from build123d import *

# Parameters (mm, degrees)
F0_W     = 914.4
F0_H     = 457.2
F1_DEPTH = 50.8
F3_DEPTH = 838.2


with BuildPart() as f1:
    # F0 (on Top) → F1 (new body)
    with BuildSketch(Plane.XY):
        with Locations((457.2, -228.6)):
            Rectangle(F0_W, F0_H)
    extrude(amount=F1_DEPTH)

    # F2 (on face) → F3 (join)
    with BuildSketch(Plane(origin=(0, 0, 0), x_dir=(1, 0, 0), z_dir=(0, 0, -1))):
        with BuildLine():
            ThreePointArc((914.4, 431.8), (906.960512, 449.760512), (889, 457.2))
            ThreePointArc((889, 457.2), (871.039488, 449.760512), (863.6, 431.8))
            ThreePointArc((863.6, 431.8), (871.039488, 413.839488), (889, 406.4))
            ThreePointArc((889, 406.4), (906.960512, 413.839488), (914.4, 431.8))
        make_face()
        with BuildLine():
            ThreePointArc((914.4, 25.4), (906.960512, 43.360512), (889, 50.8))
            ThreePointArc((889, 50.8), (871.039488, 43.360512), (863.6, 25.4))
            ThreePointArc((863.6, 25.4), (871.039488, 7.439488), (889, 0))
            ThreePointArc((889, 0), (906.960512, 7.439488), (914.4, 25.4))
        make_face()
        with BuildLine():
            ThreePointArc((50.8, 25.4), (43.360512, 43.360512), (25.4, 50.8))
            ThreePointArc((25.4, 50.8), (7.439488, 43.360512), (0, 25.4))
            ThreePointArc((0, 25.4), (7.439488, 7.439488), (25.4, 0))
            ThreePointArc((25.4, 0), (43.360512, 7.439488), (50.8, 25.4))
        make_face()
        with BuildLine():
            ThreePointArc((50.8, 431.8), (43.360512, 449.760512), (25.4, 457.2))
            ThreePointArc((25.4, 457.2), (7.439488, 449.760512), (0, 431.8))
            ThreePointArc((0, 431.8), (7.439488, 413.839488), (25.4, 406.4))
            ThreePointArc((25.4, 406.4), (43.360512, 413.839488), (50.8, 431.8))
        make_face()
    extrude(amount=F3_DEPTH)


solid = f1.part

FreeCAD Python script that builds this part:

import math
import FreeCAD as App
import Part
import Sketcher
Q = App.Units.Quantity

doc = App.newDocument("Part")
params = doc.addObject("Spreadsheet::Sheet", "Params")
for row, (alias, value) in enumerate([
    ("sketch1_width", "36 in"),
    ("sketch1_height", "18 in"),
    ("pad1_length", "2 in"),
    ("sketch2_radius", "1 in"),
    ("pad2_length", "33 in"),
], start=1):
    params.set(f"A{row}", alias)
    params.set(f"B{row}", "=" + value)
    params.setAlias(f"B{row}", alias)

body = doc.addObject("PartDesign::Body", "Body")

sketch1 = body.newObject("Sketcher::SketchObject", "Sketch")
sketch1.AttachmentSupport = (doc.getObject("XY_Plane"), [""])
sketch1.MapMode = "FlatFace"
sketch1.addGeometry([
    Part.LineSegment(App.Vector(0, 0, 0), App.Vector(0, -457, 0)),
    Part.LineSegment(App.Vector(0, -457, 0), App.Vector(914, -457, 0)),
    Part.LineSegment(App.Vector(914, -457, 0), App.Vector(914, 0, 0)),
    Part.LineSegment(App.Vector(914, 0, 0), App.Vector(0, 0, 0)),
], False)
sketch1.addConstraint([
    Sketcher.Constraint("Coincident", 0, 2, 1, 1),
    Sketcher.Constraint("Coincident", 1, 2, 2, 1),
    Sketcher.Constraint("Coincident", 2, 2, 3, 1),
    Sketcher.Constraint("Coincident", 3, 2, 0, 1),
    Sketcher.Constraint("Vertical", 0),
    Sketcher.Constraint("Horizontal", 1),
    Sketcher.Constraint("Vertical", 2),
    Sketcher.Constraint("Horizontal", 3),
    Sketcher.Constraint("Coincident", 3, 2, -1, 1),
    Sketcher.Constraint("DistanceX", 1, 1, 1, 2, Q("36 in")),
    Sketcher.Constraint("DistanceY", 0, 2, 0, 1, Q("18 in")),
])
sketch1.setExpression("Constraints[9]", "Params.sketch1_width")
sketch1.setExpression("Constraints[10]", "Params.sketch1_height")
pad1 = body.newObject("PartDesign::Pad", "Pad")
pad1.Profile = sketch1
pad1.setExpression("Length", "Params.pad1_length")

sketch2 = body.newObject("Sketcher::SketchObject", "Sketch001")
sketch2.AttachmentSupport = (doc.getObject("XY_Plane"), [""])
sketch2.MapMode = "FlatFace"
sketch2.addGeometry([
    Part.ArcOfCircle(Part.Circle(App.Vector(889, -432, 0), App.Vector(0, 0, 1), 25), math.radians(-90), math.radians(0)),
    Part.ArcOfCircle(Part.Circle(App.Vector(889, -432, 0), App.Vector(0, 0, 1), 25), math.radians(-180), math.radians(-90)),
    Part.ArcOfCircle(Part.Circle(App.Vector(889, -432, 0), App.Vector(0, 0, 1), 25), math.radians(90), math.radians(180)),
    Part.ArcOfCircle(Part.Circle(App.Vector(889, -432, 0), App.Vector(0, 0, 1), 25), math.radians(0), math.radians(90)),
    Part.ArcOfCircle(Part.Circle(App.Vector(889, -25, 0), App.Vector(0, 0, 1), 25), math.radians(-90), math.radians(0)),
    Part.ArcOfCircle(Part.Circle(App.Vector(889, -25, 0), App.Vector(0, 0, 1), 25), math.radians(-180), math.radians(-90)),
    Part.ArcOfCircle(Part.Circle(App.Vector(889, -25, 0), App.Vector(0, 0, 1), 25), math.radians(90), math.radians(180)),
    Part.ArcOfCircle(Part.Circle(App.Vector(889, -25, 0), App.Vector(0, 0, 1), 25), math.radians(0), math.radians(90)),
    Part.ArcOfCircle(Part.Circle(App.Vector(25, -25, 0), App.Vector(0, 0, 1), 25), math.radians(-90), math.radians(0)),
    Part.ArcOfCircle(Part.Circle(App.Vector(25, -25, 0), App.Vector(0, 0, 1), 25), math.radians(-180), math.radians(-90)),
    Part.ArcOfCircle(Part.Circle(App.Vector(25, -25, 0), App.Vector(0, 0, 1), 25), math.radians(90), math.radians(180)),
    Part.ArcOfCircle(Part.Circle(App.Vector(25, -25, 0), App.Vector(0, 0, 1), 25), math.radians(0), math.radians(90)),
    Part.ArcOfCircle(Part.Circle(App.Vector(25, -432, 0), App.Vector(0, 0, 1), 25), math.radians(-90), math.radians(0)),
    Part.ArcOfCircle(Part.Circle(App.Vector(25, -432, 0), App.Vector(0, 0, 1), 25), math.radians(-180), math.radians(-90)),
    Part.ArcOfCircle(Part.Circle(App.Vector(25, -432, 0), App.Vector(0, 0, 1), 25), math.radians(90), math.radians(180)),
    Part.ArcOfCircle(Part.Circle(App.Vector(25, -432, 0), App.Vector(0, 0, 1), 25), math.radians(0), math.radians(90)),
], False)
sketch2.addConstraint([
    Sketcher.Constraint("Tangent", 0, 1, 1, 2),
    Sketcher.Constraint("Tangent", 1, 1, 2, 2),
    Sketcher.Constraint("Tangent", 2, 1, 3, 2),
    Sketcher.Constraint("Tangent", 3, 1, 0, 2),
    Sketcher.Constraint("Tangent", 4, 1, 5, 2),
    Sketcher.Constraint("Tangent", 5, 1, 6, 2),
    Sketcher.Constraint("Tangent", 6, 1, 7, 2),
    Sketcher.Constraint("Tangent", 7, 1, 4, 2),
    Sketcher.Constraint("Tangent", 8, 1, 9, 2),
    Sketcher.Constraint("Tangent", 9, 1, 10, 2),
    Sketcher.Constraint("Tangent", 10, 1, 11, 2),
    Sketcher.Constraint("Tangent", 11, 1, 8, 2),
    Sketcher.Constraint("Tangent", 12, 1, 13, 2),
    Sketcher.Constraint("Tangent", 13, 1, 14, 2),
    Sketcher.Constraint("Tangent", 14, 1, 15, 2),
    Sketcher.Constraint("Tangent", 15, 1, 12, 2),
    Sketcher.Constraint("Equal", 0, 1),
    Sketcher.Constraint("Equal", 3, 4),
    Sketcher.Constraint("Equal", 4, 5),
    Sketcher.Constraint("Equal", 7, 8),
    Sketcher.Constraint("Equal", 8, 9),
    Sketcher.Constraint("Equal", 11, 12),
    Sketcher.Constraint("Equal", 12, 13),
    Sketcher.Constraint("PointOnObject", 6, 1, -1),
    Sketcher.Constraint("PointOnObject", 9, 1, -2),
    Sketcher.Constraint("PointOnObject", 10, 1, -1),
    Sketcher.Constraint("PointOnObject", 13, 1, -2),
    Sketcher.Constraint("Horizontal", 3, 3, 12, 3),
    Sketcher.Constraint("Horizontal", 15, 3, 1, 1),
    Sketcher.Constraint("Horizontal", 1, 1, 3, 1),
    Sketcher.Constraint("Horizontal", 11, 3, 5, 1),
    Sketcher.Constraint("Horizontal", 5, 1, 7, 1),
    Sketcher.Constraint("Horizontal", 7, 1, 9, 1),
    Sketcher.Constraint("Horizontal", 9, 1, 11, 1),
    Sketcher.Constraint("Horizontal", 3, 1, 13, 1),
    Sketcher.Constraint("Horizontal", 13, 1, 15, 1),
    Sketcher.Constraint("Vertical", 3, 3, 4, 3),
    Sketcher.Constraint("Vertical", 7, 3, 0, 1),
    Sketcher.Constraint("Vertical", 0, 1, 2, 1),
    Sketcher.Constraint("Vertical", 2, 1, 4, 1),
    Sketcher.Constraint("Vertical", 4, 1, 6, 1),
    Sketcher.Constraint("Vertical", 15, 3, 8, 1),
    Sketcher.Constraint("Vertical", 8, 1, 10, 1),
    Sketcher.Constraint("Vertical", 10, 1, 12, 1),
    Sketcher.Constraint("Vertical", 12, 1, 14, 1),
    Sketcher.Constraint("Radius", 0, Q("1 in")),
    Sketcher.Constraint("DistanceX", -1, 1, 0, 3, Q("35 in")),
    Sketcher.Constraint("DistanceY", 0, 3, -1, 1, Q("17 in")),
])
sketch2.setExpression("Constraints[45]", "Params.sketch2_radius")
pad2 = body.newObject("PartDesign::Pad", "Pad001")
pad2.Profile = sketch2
pad2.setExpression("Length", "Params.pad2_length")
pad2.Reversed = True

doc.recompute()
